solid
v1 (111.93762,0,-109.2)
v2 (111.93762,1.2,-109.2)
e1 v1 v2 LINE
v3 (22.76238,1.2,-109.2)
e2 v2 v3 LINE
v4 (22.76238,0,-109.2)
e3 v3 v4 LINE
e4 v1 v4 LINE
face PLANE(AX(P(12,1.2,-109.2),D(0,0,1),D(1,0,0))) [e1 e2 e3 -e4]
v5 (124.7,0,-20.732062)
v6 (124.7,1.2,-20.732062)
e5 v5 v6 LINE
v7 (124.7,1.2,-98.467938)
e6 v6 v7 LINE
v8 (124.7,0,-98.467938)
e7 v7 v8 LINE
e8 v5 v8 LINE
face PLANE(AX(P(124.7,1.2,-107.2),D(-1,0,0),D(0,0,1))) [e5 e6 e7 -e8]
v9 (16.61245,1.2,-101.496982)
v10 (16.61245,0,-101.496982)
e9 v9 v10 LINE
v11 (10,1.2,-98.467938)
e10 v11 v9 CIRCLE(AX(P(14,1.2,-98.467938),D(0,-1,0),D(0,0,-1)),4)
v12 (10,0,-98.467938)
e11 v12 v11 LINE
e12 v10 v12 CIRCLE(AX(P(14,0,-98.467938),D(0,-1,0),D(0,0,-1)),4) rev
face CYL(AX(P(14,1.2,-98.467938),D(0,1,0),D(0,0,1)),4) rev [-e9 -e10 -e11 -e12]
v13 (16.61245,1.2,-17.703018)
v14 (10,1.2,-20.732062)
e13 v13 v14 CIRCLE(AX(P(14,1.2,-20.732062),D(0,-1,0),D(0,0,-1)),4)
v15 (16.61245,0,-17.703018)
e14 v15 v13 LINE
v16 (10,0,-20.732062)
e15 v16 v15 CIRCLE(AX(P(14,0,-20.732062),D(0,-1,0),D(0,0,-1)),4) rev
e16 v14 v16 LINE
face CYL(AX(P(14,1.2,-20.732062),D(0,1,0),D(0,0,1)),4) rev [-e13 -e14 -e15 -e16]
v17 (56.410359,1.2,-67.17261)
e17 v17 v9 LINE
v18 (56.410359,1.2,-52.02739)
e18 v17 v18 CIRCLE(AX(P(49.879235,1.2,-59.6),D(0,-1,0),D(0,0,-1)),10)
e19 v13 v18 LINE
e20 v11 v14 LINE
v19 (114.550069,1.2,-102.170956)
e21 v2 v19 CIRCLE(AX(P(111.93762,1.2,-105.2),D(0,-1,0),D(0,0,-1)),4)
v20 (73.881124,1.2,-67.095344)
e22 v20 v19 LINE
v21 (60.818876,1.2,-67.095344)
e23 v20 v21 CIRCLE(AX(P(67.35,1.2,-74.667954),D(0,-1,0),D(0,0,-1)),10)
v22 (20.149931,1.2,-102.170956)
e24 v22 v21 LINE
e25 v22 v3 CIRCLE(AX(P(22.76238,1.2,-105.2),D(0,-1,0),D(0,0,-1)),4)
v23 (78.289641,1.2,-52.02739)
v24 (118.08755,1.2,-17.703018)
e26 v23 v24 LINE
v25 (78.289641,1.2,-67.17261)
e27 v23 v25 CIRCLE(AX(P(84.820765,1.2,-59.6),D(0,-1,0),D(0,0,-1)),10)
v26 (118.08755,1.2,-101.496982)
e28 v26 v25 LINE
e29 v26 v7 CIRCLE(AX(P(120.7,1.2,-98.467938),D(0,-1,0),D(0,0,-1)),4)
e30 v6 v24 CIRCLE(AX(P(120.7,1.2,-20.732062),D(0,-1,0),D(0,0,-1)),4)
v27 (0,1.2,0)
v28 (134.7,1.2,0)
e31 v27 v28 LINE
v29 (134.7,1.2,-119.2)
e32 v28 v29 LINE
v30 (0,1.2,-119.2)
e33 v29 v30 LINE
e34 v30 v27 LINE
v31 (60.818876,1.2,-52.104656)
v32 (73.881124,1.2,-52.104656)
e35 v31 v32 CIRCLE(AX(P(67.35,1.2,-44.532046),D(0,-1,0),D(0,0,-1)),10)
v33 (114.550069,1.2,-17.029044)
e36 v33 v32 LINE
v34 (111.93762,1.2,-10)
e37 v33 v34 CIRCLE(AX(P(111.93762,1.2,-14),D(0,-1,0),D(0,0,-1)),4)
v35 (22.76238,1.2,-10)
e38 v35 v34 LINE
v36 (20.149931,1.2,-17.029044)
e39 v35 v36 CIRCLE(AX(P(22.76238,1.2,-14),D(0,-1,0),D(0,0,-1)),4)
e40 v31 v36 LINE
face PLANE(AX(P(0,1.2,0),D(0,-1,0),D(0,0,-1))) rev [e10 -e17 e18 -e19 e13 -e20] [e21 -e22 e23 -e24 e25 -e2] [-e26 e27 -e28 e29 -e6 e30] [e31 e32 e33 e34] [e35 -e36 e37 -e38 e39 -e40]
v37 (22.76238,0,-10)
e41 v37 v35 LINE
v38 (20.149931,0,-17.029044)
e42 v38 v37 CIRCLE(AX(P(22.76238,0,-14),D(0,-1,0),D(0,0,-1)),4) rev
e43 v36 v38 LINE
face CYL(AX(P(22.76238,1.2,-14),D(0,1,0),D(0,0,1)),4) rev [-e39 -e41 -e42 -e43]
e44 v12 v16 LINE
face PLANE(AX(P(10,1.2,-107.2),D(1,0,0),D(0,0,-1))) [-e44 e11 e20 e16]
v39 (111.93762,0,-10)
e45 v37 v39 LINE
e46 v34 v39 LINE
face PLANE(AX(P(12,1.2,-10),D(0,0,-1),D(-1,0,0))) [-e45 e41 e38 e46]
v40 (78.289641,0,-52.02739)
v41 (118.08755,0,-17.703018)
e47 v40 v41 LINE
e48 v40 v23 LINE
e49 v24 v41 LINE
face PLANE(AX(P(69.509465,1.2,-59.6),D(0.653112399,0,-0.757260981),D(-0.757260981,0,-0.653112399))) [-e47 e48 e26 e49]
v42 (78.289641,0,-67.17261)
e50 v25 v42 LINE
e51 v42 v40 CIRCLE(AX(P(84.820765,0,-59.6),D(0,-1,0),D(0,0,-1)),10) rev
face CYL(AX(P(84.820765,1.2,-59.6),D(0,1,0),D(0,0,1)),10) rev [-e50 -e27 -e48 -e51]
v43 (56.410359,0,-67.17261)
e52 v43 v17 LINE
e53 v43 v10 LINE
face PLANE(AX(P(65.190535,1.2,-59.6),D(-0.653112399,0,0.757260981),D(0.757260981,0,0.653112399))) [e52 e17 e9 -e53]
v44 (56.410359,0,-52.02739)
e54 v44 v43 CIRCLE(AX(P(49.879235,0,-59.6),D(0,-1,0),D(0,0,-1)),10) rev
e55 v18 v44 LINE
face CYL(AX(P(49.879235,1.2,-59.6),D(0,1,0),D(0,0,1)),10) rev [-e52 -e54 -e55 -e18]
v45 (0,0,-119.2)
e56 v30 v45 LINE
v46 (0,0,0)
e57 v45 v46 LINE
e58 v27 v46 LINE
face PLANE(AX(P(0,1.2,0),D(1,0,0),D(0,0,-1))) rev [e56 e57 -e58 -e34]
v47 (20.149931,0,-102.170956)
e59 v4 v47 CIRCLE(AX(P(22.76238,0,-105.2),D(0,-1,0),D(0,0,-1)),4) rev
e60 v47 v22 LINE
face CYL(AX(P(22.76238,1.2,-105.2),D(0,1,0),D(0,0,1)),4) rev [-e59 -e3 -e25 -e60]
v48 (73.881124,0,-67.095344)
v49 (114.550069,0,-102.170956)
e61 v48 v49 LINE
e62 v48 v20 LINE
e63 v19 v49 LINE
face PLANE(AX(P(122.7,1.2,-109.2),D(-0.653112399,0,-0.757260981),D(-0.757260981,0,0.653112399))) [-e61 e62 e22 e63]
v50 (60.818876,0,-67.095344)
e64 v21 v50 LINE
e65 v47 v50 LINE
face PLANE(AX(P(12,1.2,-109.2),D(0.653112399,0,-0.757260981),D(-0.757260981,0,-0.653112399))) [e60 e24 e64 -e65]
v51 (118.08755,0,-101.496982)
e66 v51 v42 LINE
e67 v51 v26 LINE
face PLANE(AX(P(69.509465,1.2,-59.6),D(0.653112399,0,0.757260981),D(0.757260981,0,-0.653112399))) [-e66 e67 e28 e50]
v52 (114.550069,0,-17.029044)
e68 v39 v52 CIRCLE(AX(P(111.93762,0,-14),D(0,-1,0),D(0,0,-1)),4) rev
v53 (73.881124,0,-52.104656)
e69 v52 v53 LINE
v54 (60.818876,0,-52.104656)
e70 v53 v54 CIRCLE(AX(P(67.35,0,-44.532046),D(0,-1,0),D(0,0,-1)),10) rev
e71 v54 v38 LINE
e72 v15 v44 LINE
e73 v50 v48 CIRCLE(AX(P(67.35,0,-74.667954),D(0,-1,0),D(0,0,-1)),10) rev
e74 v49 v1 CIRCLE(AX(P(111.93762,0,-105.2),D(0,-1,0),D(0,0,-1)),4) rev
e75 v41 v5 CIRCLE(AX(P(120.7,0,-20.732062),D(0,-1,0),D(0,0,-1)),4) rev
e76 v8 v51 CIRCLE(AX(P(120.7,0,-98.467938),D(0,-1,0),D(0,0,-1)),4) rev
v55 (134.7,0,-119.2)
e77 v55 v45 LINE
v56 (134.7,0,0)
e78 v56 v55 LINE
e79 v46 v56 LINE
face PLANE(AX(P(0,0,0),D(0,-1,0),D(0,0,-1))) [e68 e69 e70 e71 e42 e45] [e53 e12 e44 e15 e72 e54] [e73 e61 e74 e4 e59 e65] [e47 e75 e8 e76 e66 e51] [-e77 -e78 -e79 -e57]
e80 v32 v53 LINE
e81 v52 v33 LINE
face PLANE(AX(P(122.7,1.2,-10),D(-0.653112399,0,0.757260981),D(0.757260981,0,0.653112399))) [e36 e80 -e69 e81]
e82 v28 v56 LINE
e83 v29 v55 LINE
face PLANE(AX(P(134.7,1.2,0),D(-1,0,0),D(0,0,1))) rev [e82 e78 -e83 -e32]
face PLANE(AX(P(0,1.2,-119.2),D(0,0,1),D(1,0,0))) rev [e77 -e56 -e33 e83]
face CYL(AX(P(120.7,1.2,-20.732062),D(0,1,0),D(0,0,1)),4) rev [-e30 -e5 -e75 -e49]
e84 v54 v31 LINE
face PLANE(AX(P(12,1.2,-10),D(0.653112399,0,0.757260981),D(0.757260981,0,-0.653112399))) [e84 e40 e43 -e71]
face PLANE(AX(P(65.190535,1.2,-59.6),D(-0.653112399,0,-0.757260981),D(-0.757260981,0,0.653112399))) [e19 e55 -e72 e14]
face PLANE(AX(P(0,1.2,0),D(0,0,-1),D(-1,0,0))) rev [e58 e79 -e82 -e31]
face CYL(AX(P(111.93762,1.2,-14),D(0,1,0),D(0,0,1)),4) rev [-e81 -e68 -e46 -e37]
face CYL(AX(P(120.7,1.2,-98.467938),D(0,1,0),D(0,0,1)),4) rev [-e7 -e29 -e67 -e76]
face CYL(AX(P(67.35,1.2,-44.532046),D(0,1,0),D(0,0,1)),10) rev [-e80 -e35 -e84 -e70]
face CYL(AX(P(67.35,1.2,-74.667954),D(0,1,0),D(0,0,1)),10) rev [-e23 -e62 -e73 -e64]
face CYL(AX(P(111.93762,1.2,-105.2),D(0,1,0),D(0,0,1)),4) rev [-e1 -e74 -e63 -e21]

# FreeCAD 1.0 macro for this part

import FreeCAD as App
import Part
import Sketcher

V = App.Vector


def edges_at(feature, points):
    """Names of the edges that pass closest to the given points."""
    edges = feature.Shape.Edges
    near = lambda p: min(range(len(edges)), key=lambda i: edges[i].distToShape(Part.Vertex(*p))[0])
    return sorted({f"Edge{near(p) + 1}" for p in points})


def add_polygon(sketch, points):
    """Adds a closed chain of lines whose ends are joined by coincident constraints."""
    first, n = sketch.GeometryCount, len(points)
    for a, b in zip(points, points[1:] + points[:1]):
        sketch.addGeometry(Part.LineSegment(App.Vector(*a, 0), App.Vector(*b, 0)), False)
    for i in range(n):
        sketch.addConstraint(Sketcher.Constraint("Coincident", first + i, 2, first + (i + 1) % n, 1))

doc = App.newDocument("Part")
body = doc.addObject("PartDesign::Body", "Body")

sketch1 = body.newObject("Sketcher::SketchObject", "Sketch")
sketch1.AttachmentSupport = (doc.getObject("XZ_Plane"), [""])
sketch1.MapMode = "FlatFace"
add_polygon(sketch1, [(0, -119), (0, 0), (135, 0), (135, -119)])
add_polygon(sketch1, [(123, -10), (12, -10), (67, -58)])
add_polygon(sketch1, [(10, -12), (10, -107), (65, -60)])
add_polygon(sketch1, [(70, -60), (125, -107), (125, -12)])
add_polygon(sketch1, [(12, -109), (123, -109), (67, -61)])
sketch1.addConstraint([
    Sketcher.Constraint("Vertical", 0),
    Sketcher.Constraint("Horizontal", 1),
    Sketcher.Constraint("Vertical", 2),
    Sketcher.Constraint("Horizontal", 3),
    Sketcher.Constraint("Horizontal", 4),
    Sketcher.Constraint("Vertical", 7),
    Sketcher.Constraint("Vertical", 11),
    Sketcher.Constraint("Horizontal", 13),
    Sketcher.Constraint("Coincident", 0, 2, -1, 1),
    Sketcher.Constraint("Parallel", 6, 8),
    Sketcher.Constraint("Parallel", 5, 9),
    Sketcher.Constraint("Parallel", 9, 10),
    Sketcher.Constraint("Parallel", 8, 12),
    Sketcher.Constraint("Parallel", 10, 14),
    Sketcher.Constraint("Parallel", 12, 15),
    Sketcher.Constraint("Horizontal", 7, 2, 10, 2),
    Sketcher.Constraint("Horizontal", 9, 2, 11, 2),
    Sketcher.Constraint("Horizontal", 8, 2, 12, 2),
    Sketcher.Constraint("Vertical", 6, 2, 13, 2),
    Sketcher.Constraint("Vertical", 5, 2, 14, 2),
    Sketcher.Constraint("DistanceX", 1, 1, 1, 2, 134.7),
    Sketcher.Constraint("DistanceX", 4, 2, 4, 1, 110.7),
    Sketcher.Constraint("DistanceY", 0, 1, 0, 2, 119.2),
    Sketcher.Constraint("DistanceY", 7, 2, 7, 1, 95.2),
    Sketcher.Constraint("DistanceX", -1, 1, 4, 2, 12.0),
    Sketcher.Constraint("DistanceY", 4, 2, -1, 1, 10.0),
    Sketcher.Constraint("DistanceX", -1, 1, 7, 2, 10.0),
    Sketcher.Constraint("DistanceY", 9, 2, -1, 1, 12.0),
    Sketcher.Constraint("DistanceX", 10, 2, 2, 2, 10.0),
    Sketcher.Constraint("DistanceY", 13, 2, 10, 2, 2.0),
    Sketcher.Constraint("Distance", 5, 73.09237),
])
pad1 = body.newObject("PartDesign::Pad", "Pad")
pad1.Profile = sketch1
pad1.Length = 1.2
pad1.Reversed = True
doc.recompute()

fillet = body.newObject("PartDesign::Fillet", "Fillet")
fillet.Base = (pad1, edges_at(pad1, [
    (67.35, 0.6, -61.462),
    (65.191, 0.6, -59.6),
    (67.35, 0.6, -57.738),
    (69.509, 0.6, -59.6),
]))
fillet.Radius = 10
doc.recompute()

fillet2 = body.newObject("PartDesign::Fillet", "Fillet001")
fillet2.Base = (fillet, edges_at(fillet, [
    (12, 0.6, -109.2),
    (122.7, 0.6, -109.2),
    (10, 0.6, -107.2),
    (10, 0.6, -12),
    (122.7, 0.6, -10),
    (12, 0.6, -10),
    (124.7, 0.6, -107.2),
    (124.7, 0.6, -12),
]))
fillet2.Radius = 4

doc.recompute()
